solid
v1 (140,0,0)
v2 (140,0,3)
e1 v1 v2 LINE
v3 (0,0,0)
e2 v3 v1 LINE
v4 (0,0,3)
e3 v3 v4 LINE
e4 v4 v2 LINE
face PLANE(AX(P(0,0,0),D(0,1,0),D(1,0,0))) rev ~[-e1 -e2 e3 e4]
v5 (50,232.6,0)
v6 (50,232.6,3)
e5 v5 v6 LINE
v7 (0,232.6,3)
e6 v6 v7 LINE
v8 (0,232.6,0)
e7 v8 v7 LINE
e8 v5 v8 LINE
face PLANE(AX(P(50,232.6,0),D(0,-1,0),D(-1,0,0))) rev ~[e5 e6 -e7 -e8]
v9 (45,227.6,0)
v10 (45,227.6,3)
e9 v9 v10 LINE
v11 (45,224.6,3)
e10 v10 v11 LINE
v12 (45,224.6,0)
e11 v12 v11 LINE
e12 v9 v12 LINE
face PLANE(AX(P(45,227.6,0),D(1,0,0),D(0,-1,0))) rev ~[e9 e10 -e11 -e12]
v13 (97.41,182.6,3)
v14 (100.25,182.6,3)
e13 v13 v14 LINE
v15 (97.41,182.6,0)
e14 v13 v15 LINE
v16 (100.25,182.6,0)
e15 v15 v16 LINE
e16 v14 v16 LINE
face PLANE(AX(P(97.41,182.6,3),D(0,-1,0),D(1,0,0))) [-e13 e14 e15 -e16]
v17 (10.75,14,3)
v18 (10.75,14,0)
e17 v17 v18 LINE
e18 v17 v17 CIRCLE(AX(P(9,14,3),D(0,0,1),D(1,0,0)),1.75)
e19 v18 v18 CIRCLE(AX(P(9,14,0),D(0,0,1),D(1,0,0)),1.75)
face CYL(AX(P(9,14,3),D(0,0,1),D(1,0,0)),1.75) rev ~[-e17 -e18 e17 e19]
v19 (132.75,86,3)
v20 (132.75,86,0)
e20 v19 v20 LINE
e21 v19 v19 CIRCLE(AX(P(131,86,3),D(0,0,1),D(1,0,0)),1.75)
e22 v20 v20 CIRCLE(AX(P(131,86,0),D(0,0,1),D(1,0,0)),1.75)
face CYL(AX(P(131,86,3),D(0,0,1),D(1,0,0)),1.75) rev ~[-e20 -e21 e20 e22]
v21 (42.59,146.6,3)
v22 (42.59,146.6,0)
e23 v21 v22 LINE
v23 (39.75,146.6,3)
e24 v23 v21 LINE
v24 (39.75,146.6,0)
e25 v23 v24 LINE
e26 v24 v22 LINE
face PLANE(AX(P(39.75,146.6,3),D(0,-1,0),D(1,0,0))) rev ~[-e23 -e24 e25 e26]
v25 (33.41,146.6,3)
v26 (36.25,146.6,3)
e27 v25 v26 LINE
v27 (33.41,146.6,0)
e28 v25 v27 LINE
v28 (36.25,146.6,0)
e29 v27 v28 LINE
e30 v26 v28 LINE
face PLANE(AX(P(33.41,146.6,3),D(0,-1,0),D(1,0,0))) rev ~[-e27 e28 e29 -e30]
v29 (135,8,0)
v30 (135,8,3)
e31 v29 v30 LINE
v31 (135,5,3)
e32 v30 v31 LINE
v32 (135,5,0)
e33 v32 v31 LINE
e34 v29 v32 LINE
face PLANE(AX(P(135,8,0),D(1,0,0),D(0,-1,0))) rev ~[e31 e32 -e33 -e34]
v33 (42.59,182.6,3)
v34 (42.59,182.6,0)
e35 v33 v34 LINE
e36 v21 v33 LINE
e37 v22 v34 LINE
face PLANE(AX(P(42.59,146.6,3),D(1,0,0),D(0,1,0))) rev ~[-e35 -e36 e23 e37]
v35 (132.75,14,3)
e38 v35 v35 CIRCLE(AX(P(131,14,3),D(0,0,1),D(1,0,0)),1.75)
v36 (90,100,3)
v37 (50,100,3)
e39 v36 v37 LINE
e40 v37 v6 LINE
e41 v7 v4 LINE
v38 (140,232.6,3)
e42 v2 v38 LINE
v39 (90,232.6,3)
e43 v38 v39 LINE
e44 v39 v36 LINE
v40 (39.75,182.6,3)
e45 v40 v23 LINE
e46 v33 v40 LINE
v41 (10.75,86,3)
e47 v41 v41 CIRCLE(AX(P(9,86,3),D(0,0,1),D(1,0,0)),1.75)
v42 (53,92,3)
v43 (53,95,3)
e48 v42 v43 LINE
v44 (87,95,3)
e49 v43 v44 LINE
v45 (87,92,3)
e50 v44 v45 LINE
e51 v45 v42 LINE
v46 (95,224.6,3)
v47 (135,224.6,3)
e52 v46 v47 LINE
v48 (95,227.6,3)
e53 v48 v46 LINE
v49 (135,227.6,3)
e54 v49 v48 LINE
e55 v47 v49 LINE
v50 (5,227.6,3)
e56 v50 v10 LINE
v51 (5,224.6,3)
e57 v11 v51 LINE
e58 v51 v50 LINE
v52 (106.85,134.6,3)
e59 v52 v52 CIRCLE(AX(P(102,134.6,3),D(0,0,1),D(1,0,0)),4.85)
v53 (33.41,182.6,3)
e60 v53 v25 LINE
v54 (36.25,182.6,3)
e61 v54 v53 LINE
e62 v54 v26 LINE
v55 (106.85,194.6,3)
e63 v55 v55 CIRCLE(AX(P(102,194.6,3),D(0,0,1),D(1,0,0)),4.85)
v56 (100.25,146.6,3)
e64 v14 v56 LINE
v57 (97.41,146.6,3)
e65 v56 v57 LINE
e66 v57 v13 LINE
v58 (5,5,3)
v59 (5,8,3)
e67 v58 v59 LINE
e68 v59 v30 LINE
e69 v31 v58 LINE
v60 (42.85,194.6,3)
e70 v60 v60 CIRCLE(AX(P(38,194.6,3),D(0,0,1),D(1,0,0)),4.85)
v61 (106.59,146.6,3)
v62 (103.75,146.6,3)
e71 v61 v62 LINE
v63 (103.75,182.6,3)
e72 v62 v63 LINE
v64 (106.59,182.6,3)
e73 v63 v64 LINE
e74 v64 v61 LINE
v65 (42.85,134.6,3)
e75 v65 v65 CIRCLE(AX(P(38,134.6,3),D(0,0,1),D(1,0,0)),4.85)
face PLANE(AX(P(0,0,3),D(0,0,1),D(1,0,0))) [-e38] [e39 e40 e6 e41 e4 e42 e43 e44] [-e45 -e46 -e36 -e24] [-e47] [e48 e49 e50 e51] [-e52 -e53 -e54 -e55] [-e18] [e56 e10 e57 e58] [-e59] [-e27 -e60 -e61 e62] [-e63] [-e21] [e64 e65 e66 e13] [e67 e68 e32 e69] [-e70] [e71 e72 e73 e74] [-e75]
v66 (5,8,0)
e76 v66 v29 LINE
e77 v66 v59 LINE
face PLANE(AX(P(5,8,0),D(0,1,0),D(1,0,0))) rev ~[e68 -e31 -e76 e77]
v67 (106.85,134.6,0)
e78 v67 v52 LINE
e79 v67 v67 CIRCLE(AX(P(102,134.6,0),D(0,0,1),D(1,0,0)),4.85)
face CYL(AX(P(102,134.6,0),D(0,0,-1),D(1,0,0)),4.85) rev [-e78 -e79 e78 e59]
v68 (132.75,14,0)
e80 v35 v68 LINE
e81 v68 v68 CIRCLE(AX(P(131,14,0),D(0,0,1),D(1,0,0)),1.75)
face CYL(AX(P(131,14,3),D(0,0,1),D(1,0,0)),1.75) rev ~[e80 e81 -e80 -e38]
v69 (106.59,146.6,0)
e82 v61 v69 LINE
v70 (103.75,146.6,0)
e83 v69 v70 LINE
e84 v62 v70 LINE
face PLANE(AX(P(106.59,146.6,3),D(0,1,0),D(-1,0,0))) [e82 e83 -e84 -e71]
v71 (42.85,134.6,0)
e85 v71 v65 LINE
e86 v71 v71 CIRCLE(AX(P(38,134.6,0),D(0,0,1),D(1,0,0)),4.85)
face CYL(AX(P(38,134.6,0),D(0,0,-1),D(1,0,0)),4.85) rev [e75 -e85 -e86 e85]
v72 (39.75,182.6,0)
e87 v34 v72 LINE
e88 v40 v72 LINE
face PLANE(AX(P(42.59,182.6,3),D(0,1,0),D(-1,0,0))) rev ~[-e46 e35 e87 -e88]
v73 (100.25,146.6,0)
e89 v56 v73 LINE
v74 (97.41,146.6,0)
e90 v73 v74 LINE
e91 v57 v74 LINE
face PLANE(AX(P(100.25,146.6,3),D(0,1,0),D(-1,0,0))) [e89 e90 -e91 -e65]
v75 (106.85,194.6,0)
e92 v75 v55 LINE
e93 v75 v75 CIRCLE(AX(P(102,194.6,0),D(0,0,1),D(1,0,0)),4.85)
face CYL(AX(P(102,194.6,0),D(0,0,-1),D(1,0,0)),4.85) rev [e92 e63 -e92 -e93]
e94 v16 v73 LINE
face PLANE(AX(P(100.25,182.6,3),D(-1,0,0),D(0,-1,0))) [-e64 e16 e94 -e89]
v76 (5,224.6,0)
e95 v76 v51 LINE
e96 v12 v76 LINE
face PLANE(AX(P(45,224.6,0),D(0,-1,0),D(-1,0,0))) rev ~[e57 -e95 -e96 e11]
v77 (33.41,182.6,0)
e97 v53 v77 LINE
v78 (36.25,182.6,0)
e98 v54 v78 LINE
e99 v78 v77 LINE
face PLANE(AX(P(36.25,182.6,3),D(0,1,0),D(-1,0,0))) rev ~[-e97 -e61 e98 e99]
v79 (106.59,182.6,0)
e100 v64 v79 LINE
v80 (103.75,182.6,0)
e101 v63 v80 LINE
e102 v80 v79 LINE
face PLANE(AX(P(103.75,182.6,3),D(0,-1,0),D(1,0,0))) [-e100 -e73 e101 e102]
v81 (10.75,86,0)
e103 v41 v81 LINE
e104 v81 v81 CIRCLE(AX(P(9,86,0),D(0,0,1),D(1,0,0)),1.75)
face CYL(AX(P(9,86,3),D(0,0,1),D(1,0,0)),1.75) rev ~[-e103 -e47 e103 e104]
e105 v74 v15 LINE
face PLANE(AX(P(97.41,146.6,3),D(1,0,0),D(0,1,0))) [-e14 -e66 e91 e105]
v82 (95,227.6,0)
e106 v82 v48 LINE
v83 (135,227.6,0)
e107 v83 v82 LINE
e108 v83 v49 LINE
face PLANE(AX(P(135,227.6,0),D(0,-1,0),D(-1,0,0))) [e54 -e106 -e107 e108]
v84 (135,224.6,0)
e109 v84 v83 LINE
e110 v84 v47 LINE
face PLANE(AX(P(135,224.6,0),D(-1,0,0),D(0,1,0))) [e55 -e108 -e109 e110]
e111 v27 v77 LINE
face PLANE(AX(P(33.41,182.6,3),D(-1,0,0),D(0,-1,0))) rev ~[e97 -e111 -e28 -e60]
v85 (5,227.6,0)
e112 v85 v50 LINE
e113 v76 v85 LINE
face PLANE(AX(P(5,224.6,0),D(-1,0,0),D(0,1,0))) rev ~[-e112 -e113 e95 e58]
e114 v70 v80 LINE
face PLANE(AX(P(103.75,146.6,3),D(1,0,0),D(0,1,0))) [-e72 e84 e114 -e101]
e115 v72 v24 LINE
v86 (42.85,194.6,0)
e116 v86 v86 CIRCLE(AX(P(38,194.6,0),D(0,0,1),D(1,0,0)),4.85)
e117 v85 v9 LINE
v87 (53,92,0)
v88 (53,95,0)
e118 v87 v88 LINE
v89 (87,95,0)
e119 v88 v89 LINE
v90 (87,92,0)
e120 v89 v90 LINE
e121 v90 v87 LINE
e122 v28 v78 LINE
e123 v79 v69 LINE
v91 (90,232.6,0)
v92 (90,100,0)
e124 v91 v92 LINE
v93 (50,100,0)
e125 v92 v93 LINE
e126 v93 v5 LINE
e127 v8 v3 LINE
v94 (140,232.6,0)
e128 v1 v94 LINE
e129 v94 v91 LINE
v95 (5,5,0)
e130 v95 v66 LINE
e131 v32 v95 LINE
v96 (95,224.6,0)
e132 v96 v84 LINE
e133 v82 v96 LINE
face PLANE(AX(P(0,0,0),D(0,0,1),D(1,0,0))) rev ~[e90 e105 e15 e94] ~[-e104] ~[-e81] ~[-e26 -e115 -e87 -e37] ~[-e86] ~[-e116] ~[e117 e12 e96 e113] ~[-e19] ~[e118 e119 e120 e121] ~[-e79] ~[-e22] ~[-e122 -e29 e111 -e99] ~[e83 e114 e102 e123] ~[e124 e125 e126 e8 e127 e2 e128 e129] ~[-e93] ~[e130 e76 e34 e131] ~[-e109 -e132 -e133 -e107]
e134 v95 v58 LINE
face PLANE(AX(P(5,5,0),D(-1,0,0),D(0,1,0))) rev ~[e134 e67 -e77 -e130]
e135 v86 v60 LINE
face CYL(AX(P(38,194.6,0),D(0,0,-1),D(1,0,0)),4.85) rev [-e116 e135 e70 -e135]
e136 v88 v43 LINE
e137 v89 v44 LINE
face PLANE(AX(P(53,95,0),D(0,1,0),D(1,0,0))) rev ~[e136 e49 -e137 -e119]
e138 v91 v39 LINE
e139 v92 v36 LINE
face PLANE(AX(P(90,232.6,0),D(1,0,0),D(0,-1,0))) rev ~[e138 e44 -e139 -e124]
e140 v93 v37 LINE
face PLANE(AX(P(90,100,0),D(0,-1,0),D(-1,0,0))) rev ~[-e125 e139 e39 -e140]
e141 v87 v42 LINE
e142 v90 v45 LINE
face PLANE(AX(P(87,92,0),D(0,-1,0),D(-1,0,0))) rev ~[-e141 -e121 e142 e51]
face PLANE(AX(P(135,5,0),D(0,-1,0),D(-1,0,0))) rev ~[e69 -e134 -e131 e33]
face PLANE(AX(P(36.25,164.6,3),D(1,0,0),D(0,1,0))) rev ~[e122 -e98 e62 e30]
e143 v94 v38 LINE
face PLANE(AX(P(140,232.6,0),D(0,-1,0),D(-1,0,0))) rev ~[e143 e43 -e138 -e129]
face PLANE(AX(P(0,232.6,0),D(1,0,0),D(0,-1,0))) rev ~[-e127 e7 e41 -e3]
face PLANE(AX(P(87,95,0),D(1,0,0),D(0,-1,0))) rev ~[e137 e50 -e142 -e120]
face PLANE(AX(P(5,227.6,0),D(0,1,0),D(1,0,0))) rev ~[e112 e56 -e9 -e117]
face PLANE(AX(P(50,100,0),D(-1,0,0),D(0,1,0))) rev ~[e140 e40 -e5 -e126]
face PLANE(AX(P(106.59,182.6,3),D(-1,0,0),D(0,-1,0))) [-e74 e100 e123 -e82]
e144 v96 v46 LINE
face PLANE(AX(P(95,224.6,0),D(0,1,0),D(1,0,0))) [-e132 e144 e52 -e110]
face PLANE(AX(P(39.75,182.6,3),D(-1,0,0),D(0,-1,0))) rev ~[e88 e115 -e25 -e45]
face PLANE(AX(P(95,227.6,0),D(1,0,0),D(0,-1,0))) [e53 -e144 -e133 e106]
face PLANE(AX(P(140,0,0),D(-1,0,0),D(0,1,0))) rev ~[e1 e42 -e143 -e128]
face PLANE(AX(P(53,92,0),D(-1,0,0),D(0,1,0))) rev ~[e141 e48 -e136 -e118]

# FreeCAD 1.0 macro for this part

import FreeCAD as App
import Part
import Sketcher

V = App.Vector


def add_polygon(sketch, points):
    """Adds a closed chain of lines whose ends are joined by coincident constraints."""
    first, n = sketch.GeometryCount, len(points)
    for a, b in zip(points, points[1:] + points[:1]):
        sketch.addGeometry(Part.LineSegment(App.Vector(*a, 0), App.Vector(*b, 0)), False)
    for i in range(n):
        sketch.addConstraint(Sketcher.Constraint("Coincident", first + i, 2, first + (i + 1) % n, 1))

doc = App.newDocument("Part")
body = doc.addObject("PartDesign::Body", "Body")

sketch1 = body.newObject("Sketcher::SketchObject", "Sketch")
sketch1.AttachmentSupport = (doc.getObject("XY_Plane"), [""])
sketch1.MapMode = "FlatFace"
add_polygon(sketch1, [(0, 232.6), (0, 0), (140, 0), (140, 232.6), (90, 232.6), (90, 100), (50, 100), (50, 232.6)])
add_polygon(sketch1, [(5, 5), (5, 8), (135, 8), (135, 5)])
add_polygon(sketch1, [(53, 92), (53, 95), (87, 95), (87, 92)])
sketch1.addGeometry(Part.Circle(V(38, 134.6, 0), V(0, 0, 1), 4.85), False)
add_polygon(sketch1, [(5, 224.6), (5, 227.6), (45, 227.6), (45, 224.6)])
sketch1.addGeometry(Part.Circle(V(38, 194.6, 0), V(0, 0, 1), 4.85), False)
sketch1.addGeometry(Part.Circle(V(102, 134.6, 0), V(0, 0, 1), 4.85), False)
sketch1.addGeometry(Part.Circle(V(102, 194.6, 0), V(0, 0, 1), 4.85), False)
add_polygon(sketch1, [(95, 227.6), (135, 227.6), (135, 224.6), (95, 224.6)])
sketch1.addConstraint([
    Sketcher.Constraint("Vertical", 0),
    Sketcher.Constraint("Horizontal", 1),
    Sketcher.Constraint("Vertical", 2),
    Sketcher.Constraint("Horizontal", 3),
    Sketcher.Constraint("Vertical", 4),
    Sketcher.Constraint("Horizontal", 5),
    Sketcher.Constraint("Vertical", 6),
    Sketcher.Constraint("Horizontal", 7),
    Sketcher.Constraint("Vertical", 8),
    Sketcher.Constraint("Horizontal", 9),
    Sketcher.Constraint("Vertical", 10),
    Sketcher.Constraint("Horizontal", 11),
    Sketcher.Constraint("Vertical", 12),
    Sketcher.Constraint("Horizontal", 13),
    Sketcher.Constraint("Vertical", 14),
    Sketcher.Constraint("Horizontal", 15),
    Sketcher.Constraint("Vertical", 17),
    Sketcher.Constraint("Horizontal", 18),
    Sketcher.Constraint("Vertical", 19),
    Sketcher.Constraint("Horizontal", 20),
    Sketcher.Constraint("Horizontal", 24),
    Sketcher.Constraint("Vertical", 25),
    Sketcher.Constraint("Horizontal", 26),
    Sketcher.Constraint("Vertical", 27),
    Sketcher.Constraint("Coincident", 0, 2, -1, 1),
    Sketcher.Constraint("Equal", 16, 21),
    Sketcher.Constraint("Equal", 21, 22),
    Sketcher.Constraint("Equal", 22, 23),
    Sketcher.Constraint("Horizontal", 16, 3, 22, 3),
    Sketcher.Constraint("Horizontal", 21, 3, 23, 3),
    Sketcher.Constraint("Horizontal", 3, 2, 6, 2),
    Sketcher.Constraint("Horizontal", 18, 2, 24, 2),
    Sketcher.Constraint("Horizontal", 20, 2, 25, 2),
    Sketcher.Constraint("Vertical", 16, 3, 21, 3),
    Sketcher.Constraint("Vertical", 22, 3, 23, 3),
    Sketcher.Constraint("Vertical", 11, 2, 17, 2),
    Sketcher.Constraint("Vertical", 10, 2, 24, 2),
    Sketcher.Constraint("Equal", 3, 7),
    Sketcher.Constraint("Equal", 5, 18),
    Sketcher.Constraint("Equal", 20, 24),
    Sketcher.Constraint("Equal", 10, 12),
    Sketcher.Constraint("Equal", 14, 17),
    Sketcher.Constraint("Diameter", 16, 9.7),
    Sketcher.Constraint("DistanceX", 3, 2, 3, 1, 50.0),
    Sketcher.Constraint("DistanceX", 5, 2, 5, 1, 40.0),
    Sketcher.Constraint("DistanceY", 8, 1, 8, 2, 3.0),
    Sketcher.Constraint("DistanceY", 4, 2, 4, 1, 132.6),
    Sketcher.Constraint("DistanceY", -1, 1, 4, 2, 100.0),
    Sketcher.Constraint("DistanceX", -1, 1, 8, 2, 5.0),
    Sketcher.Constraint("DistanceY", -1, 1, 8, 2, 8.0),
    Sketcher.Constraint("DistanceY", 16, 3, 21, 3, 60.0),
    Sketcher.Constraint("DistanceX", 9, 2, 1, 2, 5.0),
    Sketcher.Constraint("DistanceX", 5, 2, 12, 2, 3.0),
    Sketcher.Constraint("DistanceY", 12, 2, 5, 2, 5.0),
    Sketcher.Constraint("DistanceX", 13, 2, 4, 2, 3.0),
    Sketcher.Constraint("DistanceY", 17, 2, 7, 2, 5.0),
    Sketcher.Constraint("DistanceY", 21, 3, 19, 2, 30.0),
    Sketcher.Constraint("DistanceX", -1, 1, 16, 3, 38.0),
    Sketcher.Constraint("DistanceX", -1, 1, 22, 3, 102.0),
])
pad1 = body.newObject("PartDesign::Pad", "Pad")
pad1.Profile = sketch1
pad1.Length = 3

sketch2 = body.newObject("Sketcher::SketchObject", "Sketch001")
sketch2.AttachmentSupport = (doc.getObject("XY_Plane"), [""])
sketch2.MapMode = "FlatFace"
sketch2.AttachmentOffset = App.Placement(V(0, 0, 3), App.Rotation())
add_polygon(sketch2, [(36.25, 182.6), (33.41, 182.6), (33.41, 146.6), (36.25, 146.6)])
add_polygon(sketch2, [(39.75, 182.6), (39.75, 146.6), (42.59, 146.6), (42.59, 182.6)])
add_polygon(sketch2, [(106.59, 182.6), (103.75, 182.6), (103.75, 146.6), (106.59, 146.6)])
add_polygon(sketch2, [(97.41, 146.6), (100.25, 146.6), (100.25, 182.6), (97.41, 182.6)])
sketch2.addConstraint([
    Sketcher.Constraint("Horizontal", 0),
    Sketcher.Constraint("Vertical", 1),
    Sketcher.Constraint("Horizontal", 2),
    Sketcher.Constraint("Vertical", 3),
    Sketcher.Constraint("Vertical", 4),
    Sketcher.Constraint("Horizontal", 5),
    Sketcher.Constraint("Vertical", 6),
    Sketcher.Constraint("Horizontal", 7),
    Sketcher.Constraint("Horizontal", 8),
    Sketcher.Constraint("Vertical", 9),
    Sketcher.Constraint("Horizontal", 10),
    Sketcher.Constraint("Vertical", 11),
    Sketcher.Constraint("Horizontal", 12),
    Sketcher.Constraint("Vertical", 13),
    Sketcher.Constraint("Horizontal", 14),
    Sketcher.Constraint("Vertical", 15),
    Sketcher.Constraint("Horizontal", 2, 2, 4, 2),
    Sketcher.Constraint("Horizontal", 3, 2, 6, 2),
    Sketcher.Constraint("Horizontal", 7, 2, 8, 2),
    Sketcher.Constraint("Horizontal", 5, 2, 9, 2),
    Sketcher.Constraint("Horizontal", 10, 2, 12, 2),
    Sketcher.Constraint("Horizontal", 11, 2, 13, 2),
    Sketcher.Constraint("Equal", 2, 5),
    Sketcher.Constraint("Equal", 7, 8),
    Sketcher.Constraint("Equal", 10, 12),
    Sketcher.Constraint("DistanceY", 1, 2, 1, 1, 36.0),
    Sketcher.Constraint("DistanceX", 0, 2, 0, 1, 2.84),
    Sketcher.Constraint("DistanceX", 2, 2, 4, 2, 3.5),
    Sketcher.Constraint("DistanceX", 12, 2, 9, 2, 3.5),
    Sketcher.Constraint("DistanceX", 7, 2, 8, 2, 64.0),
    Sketcher.Constraint("DistanceY", -1, 1, 0, 2, 182.6),
    Sketcher.Constraint("DistanceX", -1, 1, 0, 2, 33.41),
])
pocket1 = body.newObject("PartDesign::Pocket", "Pocket")
pocket1.Profile = sketch2
pocket1.Length = 3

sketch3 = body.newObject("Sketcher::SketchObject", "Sketch002")
sketch3.AttachmentSupport = (doc.getObject("XY_Plane"), [""])
sketch3.MapMode = "FlatFace"
sketch3.AttachmentOffset = App.Placement(V(0, 0, 3), App.Rotation())
sketch3.addGeometry([
    Part.Circle(V(9, 86, 0), V(0, 0, 1), 1.75),
    Part.Circle(V(131, 86, 0), V(0, 0, 1), 1.75),
    Part.Circle(V(9, 14, 0), V(0, 0, 1), 1.75),
    Part.Circle(V(131, 14, 0), V(0, 0, 1), 1.75),
], False)
sketch3.addConstraint([
    Sketcher.Constraint("Equal", 0, 1),
    Sketcher.Constraint("Equal", 1, 2),
    Sketcher.Constraint("Equal", 2, 3),
    Sketcher.Constraint("Horizontal", 0, 3, 1, 3),
    Sketcher.Constraint("Horizontal", 2, 3, 3, 3),
    Sketcher.Constraint("Vertical", 0, 3, 2, 3),
    Sketcher.Constraint("Vertical", 1, 3, 3, 3),
    Sketcher.Constraint("Diameter", 0, 3.5),
    Sketcher.Constraint("DistanceX", -1, 1, 0, 3, 9.0),
    Sketcher.Constraint("DistanceY", -1, 1, 0, 3, 86.0),
    Sketcher.Constraint("DistanceX", -1, 1, 1, 3, 131.0),
    Sketcher.Constraint("DistanceY", -1, 1, 2, 3, 14.0),
])
pocket2 = body.newObject("PartDesign::Pocket", "Pocket001")
pocket2.Profile = sketch3
pocket2.Length = 10

doc.recompute()
